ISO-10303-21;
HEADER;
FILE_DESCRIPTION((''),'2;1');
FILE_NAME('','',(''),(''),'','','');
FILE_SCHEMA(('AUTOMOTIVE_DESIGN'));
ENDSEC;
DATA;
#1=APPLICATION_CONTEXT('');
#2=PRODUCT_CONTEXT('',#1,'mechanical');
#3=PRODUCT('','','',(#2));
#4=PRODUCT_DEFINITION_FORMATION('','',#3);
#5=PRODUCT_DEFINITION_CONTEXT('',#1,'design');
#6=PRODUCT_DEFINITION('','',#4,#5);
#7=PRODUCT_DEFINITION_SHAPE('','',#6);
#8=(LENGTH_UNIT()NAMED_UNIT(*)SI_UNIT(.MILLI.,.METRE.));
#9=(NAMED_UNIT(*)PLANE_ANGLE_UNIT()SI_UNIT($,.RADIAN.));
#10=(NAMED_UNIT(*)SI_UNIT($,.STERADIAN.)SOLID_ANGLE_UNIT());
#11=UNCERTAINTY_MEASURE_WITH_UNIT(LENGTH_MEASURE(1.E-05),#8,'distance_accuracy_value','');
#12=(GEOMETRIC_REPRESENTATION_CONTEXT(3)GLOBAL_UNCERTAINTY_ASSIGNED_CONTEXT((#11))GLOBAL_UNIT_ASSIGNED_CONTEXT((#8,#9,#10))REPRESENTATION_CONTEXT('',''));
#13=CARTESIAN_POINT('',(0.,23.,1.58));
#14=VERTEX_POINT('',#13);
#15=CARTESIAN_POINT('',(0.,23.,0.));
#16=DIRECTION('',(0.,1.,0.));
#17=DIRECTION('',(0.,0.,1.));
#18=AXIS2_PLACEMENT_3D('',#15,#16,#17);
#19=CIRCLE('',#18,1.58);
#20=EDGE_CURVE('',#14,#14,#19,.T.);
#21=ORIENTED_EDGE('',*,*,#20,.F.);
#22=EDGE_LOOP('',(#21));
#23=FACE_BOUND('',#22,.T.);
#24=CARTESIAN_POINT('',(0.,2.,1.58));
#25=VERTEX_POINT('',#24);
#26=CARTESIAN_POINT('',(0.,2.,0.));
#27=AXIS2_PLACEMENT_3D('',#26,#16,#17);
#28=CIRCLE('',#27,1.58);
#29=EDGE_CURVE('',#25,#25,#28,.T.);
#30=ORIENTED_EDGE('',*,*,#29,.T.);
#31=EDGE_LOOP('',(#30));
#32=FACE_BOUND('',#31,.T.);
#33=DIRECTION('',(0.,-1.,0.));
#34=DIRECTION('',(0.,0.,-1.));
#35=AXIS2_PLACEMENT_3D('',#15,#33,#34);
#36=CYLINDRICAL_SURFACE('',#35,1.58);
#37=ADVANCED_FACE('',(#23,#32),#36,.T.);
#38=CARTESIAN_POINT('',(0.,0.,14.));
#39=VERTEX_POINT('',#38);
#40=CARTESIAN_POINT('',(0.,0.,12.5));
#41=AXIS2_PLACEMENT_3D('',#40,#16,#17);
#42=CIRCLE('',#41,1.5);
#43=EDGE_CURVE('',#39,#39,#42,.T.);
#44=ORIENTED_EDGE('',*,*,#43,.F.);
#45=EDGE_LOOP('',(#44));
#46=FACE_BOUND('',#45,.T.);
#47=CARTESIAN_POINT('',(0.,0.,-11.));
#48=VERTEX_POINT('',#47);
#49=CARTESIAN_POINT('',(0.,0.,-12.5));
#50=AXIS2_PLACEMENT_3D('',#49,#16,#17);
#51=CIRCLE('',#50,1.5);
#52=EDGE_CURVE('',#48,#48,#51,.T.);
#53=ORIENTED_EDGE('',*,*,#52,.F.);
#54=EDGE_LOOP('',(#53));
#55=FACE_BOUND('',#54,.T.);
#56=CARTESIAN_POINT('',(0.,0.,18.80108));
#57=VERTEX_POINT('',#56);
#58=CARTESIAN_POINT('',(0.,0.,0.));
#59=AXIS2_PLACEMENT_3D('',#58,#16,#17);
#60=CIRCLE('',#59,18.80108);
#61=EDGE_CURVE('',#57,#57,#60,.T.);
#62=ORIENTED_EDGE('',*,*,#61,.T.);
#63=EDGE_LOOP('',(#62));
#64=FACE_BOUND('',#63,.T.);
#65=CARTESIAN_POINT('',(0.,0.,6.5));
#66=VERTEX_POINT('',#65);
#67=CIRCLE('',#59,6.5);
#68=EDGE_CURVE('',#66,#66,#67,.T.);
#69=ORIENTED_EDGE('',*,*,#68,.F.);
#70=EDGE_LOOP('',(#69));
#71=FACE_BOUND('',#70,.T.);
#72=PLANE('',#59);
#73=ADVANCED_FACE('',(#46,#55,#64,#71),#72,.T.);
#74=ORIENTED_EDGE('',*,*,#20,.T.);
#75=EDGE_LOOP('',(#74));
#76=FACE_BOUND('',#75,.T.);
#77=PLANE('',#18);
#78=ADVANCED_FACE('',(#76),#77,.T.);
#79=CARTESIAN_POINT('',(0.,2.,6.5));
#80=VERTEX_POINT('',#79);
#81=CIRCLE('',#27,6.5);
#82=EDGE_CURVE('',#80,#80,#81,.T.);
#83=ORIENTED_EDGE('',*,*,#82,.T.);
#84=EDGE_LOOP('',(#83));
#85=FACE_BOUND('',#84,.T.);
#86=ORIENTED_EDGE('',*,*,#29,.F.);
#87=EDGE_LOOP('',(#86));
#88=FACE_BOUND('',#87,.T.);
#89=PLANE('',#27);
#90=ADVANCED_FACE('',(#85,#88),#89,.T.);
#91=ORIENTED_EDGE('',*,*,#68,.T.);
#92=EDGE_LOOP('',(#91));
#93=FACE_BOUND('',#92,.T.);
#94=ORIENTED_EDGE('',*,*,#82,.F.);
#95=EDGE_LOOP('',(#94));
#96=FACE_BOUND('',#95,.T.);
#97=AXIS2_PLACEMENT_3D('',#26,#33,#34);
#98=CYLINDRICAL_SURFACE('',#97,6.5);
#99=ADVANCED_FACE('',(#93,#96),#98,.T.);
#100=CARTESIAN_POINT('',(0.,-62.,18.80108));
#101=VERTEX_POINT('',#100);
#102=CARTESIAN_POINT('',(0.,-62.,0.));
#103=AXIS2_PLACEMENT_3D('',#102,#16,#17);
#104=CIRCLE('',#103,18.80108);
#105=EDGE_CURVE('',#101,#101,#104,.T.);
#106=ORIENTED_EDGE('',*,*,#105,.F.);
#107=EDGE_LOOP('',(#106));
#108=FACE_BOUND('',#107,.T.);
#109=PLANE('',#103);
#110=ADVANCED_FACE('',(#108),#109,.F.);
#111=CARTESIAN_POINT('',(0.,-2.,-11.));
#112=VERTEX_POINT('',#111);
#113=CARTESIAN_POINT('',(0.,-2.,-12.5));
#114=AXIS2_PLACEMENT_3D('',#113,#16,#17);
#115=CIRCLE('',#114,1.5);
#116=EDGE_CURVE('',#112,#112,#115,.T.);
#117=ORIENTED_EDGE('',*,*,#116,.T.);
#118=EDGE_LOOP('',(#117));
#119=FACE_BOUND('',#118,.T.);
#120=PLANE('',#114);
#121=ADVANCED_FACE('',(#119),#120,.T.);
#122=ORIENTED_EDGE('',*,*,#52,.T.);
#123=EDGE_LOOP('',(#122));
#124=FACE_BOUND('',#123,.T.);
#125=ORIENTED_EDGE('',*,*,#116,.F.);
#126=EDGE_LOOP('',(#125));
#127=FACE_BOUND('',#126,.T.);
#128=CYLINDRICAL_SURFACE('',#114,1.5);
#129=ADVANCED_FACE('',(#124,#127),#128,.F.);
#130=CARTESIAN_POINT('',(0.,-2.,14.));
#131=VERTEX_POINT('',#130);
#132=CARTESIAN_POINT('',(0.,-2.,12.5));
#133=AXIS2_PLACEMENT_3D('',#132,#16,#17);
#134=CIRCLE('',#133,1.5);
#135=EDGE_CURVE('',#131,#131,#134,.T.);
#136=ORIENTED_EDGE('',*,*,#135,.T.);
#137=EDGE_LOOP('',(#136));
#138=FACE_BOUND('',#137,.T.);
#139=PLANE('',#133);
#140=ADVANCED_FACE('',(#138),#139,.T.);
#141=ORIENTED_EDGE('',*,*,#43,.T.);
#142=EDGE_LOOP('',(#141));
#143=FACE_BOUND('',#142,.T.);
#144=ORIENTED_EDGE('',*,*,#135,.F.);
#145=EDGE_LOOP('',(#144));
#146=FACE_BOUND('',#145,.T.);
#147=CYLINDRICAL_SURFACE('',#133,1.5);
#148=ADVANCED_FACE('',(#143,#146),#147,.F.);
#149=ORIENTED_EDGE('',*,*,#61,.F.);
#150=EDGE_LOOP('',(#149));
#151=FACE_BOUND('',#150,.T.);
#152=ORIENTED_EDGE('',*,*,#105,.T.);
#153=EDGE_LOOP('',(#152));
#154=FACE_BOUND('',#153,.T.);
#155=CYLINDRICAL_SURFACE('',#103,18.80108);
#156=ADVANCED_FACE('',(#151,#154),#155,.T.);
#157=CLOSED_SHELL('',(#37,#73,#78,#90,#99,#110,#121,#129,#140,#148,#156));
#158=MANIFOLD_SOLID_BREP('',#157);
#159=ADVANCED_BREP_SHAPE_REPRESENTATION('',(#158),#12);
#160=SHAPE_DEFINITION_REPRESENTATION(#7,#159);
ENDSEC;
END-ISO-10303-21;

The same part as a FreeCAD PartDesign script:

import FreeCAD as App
import Part
import Sketcher
from FreeCAD import Vector

doc = App.newDocument("Part")
params = doc.addObject("Spreadsheet::Sheet", "Params")
for row, (alias, value) in enumerate([
    ("pad1_length", "62 mm"),
    ("sketch2_diameter", "3.16 mm"),
    ("pad2_length", "23 mm"),
    ("sketch3_diameter", "3 mm"),
    ("pocket1_length", "2 mm"),
    ("sketch4_diameter", "13 mm"),
    ("pad3_length", "2 mm"),
], start=1):
    params.set(f"A{row}", alias)
    params.set(f"B{row}", "=" + value)
    params.setAlias(f"B{row}", alias)

body = doc.addObject("PartDesign::Body", "Body")

# Sketch on XZ plane
sketch1 = body.newObject("Sketcher::SketchObject", "Sketch")
sketch1.AttachmentSupport = (doc.getObject("XZ_Plane"), [""])
sketch1.MapMode = "FlatFace"
sketch1.addGeometry(Part.Circle(Vector(0, 0, 0), Vector(0, 0, 1), 19), False)
sketch1.addConstraint(Sketcher.Constraint("Coincident", 0, 3, -1, 1))
sketch1.addConstraint(Sketcher.Constraint("Diameter", 0, 37.60216))
pad1 = body.newObject("PartDesign::Pad", "Pad")
pad1.Profile = sketch1
pad1.setExpression("Length", "Params.pad1_length")

# Sketch on XZ plane
sketch2 = body.newObject("Sketcher::SketchObject", "Sketch001")
sketch2.AttachmentSupport = (doc.getObject("XZ_Plane"), [""])
sketch2.MapMode = "FlatFace"
sketch2.addGeometry(Part.Circle(Vector(0, 0, 0), Vector(0, 0, 1), 1.6), False)
sketch2.addConstraint(Sketcher.Constraint("Coincident", 0, 3, -1, 1))
sketch2.addConstraint(Sketcher.Constraint("Diameter", 0, 3.16))
sketch2.setExpression("Constraints[1]", "Params.sketch2_diameter")
pad2 = body.newObject("PartDesign::Pad", "Pad001")
pad2.Profile = sketch2
pad2.setExpression("Length", "Params.pad2_length")
pad2.Reversed = True

# Sketch on XZ plane
sketch3 = body.newObject("Sketcher::SketchObject", "Sketch002")
sketch3.AttachmentSupport = (doc.getObject("XZ_Plane"), [""])
sketch3.MapMode = "FlatFace"
sketch3.addGeometry(Part.Circle(Vector(0, -12.5, 0), Vector(0, 0, 1), 1.5), False)
sketch3.addGeometry(Part.Circle(Vector(0, 12.5, 0), Vector(0, 0, 1), 1.5), False)
sketch3.addConstraint(Sketcher.Constraint("Equal", 0, 1))
sketch3.addConstraint(Sketcher.Constraint("Symmetric", 0, 3, 1, 3, -1, 1))
sketch3.addConstraint(Sketcher.Constraint("PointOnObject", 0, 3, -2))
sketch3.addConstraint(Sketcher.Constraint("Diameter", 0, 3.0))
sketch3.addConstraint(Sketcher.Constraint("DistanceY", 0, 3, 1, 3, 25.0))
sketch3.setExpression("Constraints[3]", "Params.sketch3_diameter")
pocket1 = body.newObject("PartDesign::Pocket", "Pocket")
pocket1.Profile = sketch3
pocket1.setExpression("Length", "Params.pocket1_length")
pocket1.Reversed = True

# Sketch on XZ plane
sketch4 = body.newObject("Sketcher::SketchObject", "Sketch003")
sketch4.AttachmentSupport = (doc.getObject("XZ_Plane"), [""])
sketch4.MapMode = "FlatFace"
sketch4.addGeometry(Part.Circle(Vector(0, 0, 0), Vector(0, 0, 1), 6), False)
sketch4.addConstraint(Sketcher.Constraint("Coincident", 0, 3, -1, 1))
sketch4.addConstraint(Sketcher.Constraint("Diameter", 0, 13.0))
sketch4.setExpression("Constraints[1]", "Params.sketch4_diameter")
pad3 = body.newObject("PartDesign::Pad", "Pad002")
pad3.Profile = sketch4
pad3.setExpression("Length", "Params.pad3_length")
pad3.Reversed = True

doc.recompute()
